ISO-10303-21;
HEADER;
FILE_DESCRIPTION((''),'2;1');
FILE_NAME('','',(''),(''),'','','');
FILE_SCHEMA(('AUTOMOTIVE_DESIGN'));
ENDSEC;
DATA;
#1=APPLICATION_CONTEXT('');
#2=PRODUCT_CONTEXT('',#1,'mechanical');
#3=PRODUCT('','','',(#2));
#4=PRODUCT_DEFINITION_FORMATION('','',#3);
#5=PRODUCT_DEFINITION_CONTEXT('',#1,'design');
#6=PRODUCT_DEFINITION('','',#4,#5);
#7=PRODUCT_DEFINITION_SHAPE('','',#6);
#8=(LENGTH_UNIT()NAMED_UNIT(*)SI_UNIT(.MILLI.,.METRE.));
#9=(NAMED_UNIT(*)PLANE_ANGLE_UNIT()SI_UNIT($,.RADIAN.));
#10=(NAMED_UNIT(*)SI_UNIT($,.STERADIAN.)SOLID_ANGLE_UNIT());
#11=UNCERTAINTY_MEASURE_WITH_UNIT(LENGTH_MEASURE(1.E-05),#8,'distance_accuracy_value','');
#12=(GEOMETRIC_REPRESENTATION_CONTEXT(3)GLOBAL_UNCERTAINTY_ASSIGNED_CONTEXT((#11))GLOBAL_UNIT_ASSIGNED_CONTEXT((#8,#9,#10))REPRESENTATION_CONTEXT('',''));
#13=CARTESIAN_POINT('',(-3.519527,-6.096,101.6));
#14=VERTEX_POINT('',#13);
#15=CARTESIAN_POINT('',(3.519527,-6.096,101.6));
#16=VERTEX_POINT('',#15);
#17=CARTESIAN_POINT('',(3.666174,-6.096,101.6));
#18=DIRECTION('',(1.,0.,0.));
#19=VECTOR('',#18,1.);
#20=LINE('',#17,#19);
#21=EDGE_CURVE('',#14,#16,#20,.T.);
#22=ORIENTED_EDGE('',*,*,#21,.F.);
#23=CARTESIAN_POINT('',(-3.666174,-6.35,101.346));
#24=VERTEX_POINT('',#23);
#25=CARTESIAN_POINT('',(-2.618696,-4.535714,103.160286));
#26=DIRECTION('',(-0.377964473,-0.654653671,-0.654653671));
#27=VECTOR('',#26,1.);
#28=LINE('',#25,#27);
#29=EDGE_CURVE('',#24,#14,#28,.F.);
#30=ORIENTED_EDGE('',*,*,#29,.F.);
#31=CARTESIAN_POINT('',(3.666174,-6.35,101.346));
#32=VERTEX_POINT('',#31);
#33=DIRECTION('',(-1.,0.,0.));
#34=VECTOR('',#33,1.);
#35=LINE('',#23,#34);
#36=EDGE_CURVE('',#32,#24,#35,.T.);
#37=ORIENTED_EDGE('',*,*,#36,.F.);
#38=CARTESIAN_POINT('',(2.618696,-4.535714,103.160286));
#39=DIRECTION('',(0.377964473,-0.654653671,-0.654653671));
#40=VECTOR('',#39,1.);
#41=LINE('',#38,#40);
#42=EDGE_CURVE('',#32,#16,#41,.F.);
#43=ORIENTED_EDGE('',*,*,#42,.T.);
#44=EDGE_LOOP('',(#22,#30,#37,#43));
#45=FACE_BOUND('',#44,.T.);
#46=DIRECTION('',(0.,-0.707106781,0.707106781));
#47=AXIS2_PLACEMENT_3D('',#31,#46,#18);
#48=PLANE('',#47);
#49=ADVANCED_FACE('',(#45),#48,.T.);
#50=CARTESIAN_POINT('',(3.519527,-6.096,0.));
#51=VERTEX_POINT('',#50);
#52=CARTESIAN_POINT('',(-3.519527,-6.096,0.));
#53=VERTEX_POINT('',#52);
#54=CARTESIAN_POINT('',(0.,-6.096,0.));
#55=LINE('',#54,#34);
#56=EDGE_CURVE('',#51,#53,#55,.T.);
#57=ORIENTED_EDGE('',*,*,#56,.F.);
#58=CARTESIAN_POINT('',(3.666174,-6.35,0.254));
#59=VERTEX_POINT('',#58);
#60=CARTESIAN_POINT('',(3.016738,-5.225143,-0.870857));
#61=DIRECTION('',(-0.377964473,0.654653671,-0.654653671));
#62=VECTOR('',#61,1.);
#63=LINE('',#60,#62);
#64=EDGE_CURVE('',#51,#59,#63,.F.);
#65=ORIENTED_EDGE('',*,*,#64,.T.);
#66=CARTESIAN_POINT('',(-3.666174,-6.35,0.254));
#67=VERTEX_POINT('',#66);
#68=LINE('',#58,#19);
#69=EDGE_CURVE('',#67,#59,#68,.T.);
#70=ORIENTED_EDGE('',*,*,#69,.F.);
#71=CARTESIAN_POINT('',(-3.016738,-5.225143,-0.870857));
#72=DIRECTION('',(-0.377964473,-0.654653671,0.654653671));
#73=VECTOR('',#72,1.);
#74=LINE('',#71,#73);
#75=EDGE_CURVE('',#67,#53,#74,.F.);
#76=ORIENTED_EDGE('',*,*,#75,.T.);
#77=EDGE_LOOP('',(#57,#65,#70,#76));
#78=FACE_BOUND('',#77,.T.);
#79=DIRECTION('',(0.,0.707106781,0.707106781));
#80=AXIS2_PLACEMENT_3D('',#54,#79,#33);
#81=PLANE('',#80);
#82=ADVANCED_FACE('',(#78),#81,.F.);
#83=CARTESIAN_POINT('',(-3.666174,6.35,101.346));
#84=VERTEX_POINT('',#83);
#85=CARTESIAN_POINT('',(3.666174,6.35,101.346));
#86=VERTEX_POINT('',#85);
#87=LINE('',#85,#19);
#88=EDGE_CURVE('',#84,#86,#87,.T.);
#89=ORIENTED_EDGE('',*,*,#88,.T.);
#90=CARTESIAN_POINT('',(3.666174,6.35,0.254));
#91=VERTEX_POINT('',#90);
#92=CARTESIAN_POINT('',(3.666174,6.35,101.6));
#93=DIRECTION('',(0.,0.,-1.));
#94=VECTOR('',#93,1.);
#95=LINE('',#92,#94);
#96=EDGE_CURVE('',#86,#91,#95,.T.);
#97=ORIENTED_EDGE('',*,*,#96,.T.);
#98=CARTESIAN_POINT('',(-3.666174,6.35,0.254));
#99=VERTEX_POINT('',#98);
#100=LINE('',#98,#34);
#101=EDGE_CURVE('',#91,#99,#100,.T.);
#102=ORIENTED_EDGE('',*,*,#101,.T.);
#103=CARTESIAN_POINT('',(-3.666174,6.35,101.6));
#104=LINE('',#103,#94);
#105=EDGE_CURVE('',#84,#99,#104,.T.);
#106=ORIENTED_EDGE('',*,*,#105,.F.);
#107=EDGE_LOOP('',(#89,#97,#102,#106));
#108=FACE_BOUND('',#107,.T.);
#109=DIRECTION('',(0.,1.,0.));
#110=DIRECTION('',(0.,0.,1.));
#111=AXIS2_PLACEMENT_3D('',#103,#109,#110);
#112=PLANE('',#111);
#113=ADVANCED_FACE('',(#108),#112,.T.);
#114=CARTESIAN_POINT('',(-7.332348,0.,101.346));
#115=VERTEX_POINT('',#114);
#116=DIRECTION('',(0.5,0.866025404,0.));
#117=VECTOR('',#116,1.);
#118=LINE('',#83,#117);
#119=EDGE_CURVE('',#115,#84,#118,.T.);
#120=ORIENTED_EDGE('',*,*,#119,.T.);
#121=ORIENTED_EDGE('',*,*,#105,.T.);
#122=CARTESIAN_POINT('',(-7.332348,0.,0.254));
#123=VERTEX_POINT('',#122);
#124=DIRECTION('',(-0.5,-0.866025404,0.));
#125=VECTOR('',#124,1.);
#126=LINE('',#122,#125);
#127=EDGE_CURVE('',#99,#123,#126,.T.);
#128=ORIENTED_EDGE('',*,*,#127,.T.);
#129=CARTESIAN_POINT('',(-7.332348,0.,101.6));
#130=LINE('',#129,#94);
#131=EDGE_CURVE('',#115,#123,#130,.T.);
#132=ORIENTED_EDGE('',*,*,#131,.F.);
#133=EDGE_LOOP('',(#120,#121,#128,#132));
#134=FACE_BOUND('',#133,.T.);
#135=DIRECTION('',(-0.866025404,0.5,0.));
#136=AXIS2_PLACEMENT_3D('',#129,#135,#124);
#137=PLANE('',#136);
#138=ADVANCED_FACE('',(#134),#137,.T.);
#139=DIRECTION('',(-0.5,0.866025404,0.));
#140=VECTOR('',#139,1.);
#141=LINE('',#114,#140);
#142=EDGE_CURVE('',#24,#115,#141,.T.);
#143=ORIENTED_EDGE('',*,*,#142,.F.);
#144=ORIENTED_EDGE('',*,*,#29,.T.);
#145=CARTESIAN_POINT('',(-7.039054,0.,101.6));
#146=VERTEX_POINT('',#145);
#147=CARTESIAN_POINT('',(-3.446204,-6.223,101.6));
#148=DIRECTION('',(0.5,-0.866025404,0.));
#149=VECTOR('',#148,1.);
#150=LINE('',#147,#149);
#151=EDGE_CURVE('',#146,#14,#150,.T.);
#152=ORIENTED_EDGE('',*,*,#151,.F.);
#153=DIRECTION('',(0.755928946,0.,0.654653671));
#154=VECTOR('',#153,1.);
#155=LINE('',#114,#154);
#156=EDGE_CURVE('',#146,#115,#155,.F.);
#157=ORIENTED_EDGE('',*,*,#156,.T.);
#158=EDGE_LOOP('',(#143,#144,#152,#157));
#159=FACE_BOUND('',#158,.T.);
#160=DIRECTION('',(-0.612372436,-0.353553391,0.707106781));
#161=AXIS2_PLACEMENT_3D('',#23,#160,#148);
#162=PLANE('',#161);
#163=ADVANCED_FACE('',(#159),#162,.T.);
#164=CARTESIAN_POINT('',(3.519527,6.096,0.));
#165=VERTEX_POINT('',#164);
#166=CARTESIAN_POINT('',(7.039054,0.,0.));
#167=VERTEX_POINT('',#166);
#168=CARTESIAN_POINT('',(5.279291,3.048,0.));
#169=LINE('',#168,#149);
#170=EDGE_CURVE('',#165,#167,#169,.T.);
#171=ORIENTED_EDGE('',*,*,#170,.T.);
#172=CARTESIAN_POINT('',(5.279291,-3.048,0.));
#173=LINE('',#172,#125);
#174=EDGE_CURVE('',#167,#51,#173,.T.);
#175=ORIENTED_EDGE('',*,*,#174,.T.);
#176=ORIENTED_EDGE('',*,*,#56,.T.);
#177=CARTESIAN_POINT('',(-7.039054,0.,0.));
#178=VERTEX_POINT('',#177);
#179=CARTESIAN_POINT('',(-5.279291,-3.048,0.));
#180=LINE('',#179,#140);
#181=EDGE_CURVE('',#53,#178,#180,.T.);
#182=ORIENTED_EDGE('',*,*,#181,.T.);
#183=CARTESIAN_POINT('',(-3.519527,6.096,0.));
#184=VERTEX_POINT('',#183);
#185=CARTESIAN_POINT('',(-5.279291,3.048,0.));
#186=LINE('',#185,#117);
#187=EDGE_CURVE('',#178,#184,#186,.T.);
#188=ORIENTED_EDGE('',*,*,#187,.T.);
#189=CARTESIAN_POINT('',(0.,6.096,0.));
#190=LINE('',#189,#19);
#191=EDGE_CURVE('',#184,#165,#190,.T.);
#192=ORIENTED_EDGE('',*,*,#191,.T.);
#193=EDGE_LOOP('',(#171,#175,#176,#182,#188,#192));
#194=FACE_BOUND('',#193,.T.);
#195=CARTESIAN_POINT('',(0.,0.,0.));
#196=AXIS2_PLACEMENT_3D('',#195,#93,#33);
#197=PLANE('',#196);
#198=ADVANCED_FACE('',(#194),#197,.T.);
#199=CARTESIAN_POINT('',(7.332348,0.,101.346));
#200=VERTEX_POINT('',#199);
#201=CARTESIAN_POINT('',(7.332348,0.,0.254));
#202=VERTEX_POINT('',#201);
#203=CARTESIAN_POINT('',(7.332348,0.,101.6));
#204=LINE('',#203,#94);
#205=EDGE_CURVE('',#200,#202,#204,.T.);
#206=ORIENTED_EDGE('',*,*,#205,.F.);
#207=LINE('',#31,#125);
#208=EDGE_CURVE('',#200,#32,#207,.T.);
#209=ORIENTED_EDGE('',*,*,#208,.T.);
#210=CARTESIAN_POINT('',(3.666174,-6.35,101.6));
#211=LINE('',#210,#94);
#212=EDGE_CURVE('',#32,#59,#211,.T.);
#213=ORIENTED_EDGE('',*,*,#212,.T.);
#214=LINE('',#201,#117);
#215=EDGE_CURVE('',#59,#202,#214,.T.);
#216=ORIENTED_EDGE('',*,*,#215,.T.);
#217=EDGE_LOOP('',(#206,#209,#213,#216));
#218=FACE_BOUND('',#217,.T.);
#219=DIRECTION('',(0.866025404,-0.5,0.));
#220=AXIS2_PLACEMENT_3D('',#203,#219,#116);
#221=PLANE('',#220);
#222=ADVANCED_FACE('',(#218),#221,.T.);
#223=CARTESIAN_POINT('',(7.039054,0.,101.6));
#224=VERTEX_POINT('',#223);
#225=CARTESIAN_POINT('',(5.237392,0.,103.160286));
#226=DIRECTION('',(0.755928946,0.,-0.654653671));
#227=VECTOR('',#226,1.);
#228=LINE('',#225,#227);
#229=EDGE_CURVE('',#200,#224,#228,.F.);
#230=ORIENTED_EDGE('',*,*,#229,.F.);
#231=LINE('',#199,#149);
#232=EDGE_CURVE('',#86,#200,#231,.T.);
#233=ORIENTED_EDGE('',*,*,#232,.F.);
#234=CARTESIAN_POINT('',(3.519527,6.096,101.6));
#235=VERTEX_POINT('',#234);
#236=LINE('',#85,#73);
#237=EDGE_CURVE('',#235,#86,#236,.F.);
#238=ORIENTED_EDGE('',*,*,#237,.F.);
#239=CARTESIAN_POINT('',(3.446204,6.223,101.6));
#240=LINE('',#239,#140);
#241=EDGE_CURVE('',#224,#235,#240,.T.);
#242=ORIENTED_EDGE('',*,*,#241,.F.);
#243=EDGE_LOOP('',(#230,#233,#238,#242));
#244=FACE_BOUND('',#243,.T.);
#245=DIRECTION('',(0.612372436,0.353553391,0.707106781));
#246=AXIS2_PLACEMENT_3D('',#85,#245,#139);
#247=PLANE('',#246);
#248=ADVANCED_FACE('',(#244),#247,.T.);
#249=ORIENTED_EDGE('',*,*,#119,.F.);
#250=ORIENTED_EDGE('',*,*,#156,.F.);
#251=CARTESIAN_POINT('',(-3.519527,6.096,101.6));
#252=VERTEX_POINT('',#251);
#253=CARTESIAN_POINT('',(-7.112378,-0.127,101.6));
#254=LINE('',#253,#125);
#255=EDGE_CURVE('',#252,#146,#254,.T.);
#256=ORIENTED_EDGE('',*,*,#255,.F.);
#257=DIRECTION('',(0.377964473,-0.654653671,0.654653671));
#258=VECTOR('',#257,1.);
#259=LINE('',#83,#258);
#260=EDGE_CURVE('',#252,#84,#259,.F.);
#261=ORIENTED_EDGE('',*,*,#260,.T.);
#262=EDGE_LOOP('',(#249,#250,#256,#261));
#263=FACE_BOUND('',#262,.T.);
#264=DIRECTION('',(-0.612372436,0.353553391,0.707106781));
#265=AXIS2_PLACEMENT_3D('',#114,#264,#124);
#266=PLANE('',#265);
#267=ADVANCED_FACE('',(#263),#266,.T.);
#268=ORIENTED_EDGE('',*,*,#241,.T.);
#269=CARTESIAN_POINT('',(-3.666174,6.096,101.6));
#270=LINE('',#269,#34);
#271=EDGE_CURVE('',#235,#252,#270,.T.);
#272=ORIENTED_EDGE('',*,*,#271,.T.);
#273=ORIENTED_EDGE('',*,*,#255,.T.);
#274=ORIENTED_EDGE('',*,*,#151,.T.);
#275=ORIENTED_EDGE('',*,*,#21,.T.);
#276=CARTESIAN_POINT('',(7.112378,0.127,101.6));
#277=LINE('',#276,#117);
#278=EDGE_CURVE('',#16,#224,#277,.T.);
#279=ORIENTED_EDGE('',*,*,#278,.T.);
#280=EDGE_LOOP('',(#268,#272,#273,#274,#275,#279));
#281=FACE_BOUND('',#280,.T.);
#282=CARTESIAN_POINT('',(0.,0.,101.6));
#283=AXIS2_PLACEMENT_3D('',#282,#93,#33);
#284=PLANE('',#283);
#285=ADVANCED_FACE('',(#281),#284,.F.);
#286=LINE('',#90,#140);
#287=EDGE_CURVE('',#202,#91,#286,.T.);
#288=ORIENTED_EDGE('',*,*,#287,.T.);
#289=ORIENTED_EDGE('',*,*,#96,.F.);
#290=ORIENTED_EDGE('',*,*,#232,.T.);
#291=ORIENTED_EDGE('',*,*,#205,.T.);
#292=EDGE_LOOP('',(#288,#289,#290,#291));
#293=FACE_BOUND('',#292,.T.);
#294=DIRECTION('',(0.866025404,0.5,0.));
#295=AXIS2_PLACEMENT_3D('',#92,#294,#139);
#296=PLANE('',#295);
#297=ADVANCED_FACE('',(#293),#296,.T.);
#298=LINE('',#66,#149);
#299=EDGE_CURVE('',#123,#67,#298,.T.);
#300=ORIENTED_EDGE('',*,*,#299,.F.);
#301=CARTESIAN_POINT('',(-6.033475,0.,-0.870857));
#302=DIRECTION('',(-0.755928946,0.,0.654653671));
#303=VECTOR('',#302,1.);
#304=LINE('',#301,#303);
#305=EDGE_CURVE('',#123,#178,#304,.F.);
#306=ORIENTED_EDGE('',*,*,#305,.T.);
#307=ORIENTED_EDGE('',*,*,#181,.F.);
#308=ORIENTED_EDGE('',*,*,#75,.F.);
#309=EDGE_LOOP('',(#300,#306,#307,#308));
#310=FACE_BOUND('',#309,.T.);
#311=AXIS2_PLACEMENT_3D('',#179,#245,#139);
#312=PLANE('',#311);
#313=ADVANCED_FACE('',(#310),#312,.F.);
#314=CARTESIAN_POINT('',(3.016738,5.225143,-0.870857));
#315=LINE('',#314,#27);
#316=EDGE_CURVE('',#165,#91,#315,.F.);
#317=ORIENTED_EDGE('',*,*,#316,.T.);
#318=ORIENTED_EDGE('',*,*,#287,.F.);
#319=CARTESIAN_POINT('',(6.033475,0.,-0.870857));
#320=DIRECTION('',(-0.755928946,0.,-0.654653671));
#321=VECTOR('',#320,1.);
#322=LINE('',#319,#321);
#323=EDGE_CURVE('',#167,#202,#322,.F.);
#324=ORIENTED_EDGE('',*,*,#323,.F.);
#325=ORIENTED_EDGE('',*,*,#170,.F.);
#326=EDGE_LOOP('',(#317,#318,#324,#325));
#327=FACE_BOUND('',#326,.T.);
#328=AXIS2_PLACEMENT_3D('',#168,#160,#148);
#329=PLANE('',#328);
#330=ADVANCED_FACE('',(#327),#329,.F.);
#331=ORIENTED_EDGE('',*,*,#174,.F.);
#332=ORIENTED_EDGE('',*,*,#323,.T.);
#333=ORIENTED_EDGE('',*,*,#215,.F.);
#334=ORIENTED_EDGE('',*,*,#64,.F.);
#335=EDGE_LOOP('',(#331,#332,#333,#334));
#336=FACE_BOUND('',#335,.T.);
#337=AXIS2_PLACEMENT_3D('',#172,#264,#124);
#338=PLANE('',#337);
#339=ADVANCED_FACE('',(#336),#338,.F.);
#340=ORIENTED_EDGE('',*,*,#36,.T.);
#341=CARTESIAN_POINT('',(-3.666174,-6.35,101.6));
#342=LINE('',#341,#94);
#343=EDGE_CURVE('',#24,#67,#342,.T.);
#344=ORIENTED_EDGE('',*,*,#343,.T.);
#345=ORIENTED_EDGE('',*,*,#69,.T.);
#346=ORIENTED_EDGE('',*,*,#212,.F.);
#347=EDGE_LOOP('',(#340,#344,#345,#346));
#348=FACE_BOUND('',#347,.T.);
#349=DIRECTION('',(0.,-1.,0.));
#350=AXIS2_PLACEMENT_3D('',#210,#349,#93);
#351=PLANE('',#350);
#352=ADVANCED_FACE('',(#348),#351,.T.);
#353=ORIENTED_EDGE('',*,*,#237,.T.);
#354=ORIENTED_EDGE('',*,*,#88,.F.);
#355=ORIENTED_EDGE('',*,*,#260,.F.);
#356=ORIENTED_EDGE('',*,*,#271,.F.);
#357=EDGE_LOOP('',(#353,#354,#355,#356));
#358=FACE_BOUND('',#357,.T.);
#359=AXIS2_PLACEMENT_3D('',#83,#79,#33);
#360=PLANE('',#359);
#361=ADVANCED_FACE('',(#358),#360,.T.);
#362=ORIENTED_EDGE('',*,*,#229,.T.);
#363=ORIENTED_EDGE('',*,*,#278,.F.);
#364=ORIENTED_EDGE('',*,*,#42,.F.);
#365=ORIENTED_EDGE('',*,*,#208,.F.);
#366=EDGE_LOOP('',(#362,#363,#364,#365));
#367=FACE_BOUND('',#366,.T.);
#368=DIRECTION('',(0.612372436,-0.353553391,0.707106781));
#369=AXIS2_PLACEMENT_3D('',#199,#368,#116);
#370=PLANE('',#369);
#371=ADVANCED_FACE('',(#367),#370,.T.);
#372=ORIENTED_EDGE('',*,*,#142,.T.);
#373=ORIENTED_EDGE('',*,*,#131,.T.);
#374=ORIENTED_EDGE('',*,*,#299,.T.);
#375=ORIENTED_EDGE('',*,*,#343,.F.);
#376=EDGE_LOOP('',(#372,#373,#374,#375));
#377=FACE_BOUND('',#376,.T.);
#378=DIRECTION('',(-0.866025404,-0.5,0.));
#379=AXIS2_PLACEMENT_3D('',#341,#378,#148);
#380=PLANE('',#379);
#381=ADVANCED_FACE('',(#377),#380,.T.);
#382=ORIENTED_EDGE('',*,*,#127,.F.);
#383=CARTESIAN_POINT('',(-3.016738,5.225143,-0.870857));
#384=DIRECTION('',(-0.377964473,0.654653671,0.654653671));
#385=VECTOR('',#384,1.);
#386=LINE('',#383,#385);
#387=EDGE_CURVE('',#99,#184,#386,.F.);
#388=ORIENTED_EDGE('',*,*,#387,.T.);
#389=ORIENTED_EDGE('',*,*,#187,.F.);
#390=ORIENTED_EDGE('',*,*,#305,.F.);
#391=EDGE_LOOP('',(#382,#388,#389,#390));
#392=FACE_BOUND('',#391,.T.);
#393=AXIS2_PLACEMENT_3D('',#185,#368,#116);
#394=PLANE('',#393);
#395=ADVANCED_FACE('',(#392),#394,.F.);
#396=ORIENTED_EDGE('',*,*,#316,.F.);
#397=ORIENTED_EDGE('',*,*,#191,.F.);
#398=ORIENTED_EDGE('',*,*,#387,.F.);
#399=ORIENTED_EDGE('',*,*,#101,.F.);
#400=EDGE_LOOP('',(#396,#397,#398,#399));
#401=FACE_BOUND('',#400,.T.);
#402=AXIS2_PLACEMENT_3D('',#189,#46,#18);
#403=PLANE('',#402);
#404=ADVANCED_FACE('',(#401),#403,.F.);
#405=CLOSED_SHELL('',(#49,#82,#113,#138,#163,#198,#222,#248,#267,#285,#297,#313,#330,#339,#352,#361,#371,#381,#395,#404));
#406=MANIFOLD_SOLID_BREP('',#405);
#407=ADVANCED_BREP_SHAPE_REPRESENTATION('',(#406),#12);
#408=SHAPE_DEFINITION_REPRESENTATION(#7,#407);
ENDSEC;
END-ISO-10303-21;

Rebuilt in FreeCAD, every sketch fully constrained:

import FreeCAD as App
import Part
import Sketcher

V = App.Vector
Q = App.Units.Quantity


def edges_at(feature, points):
    """Names of the edges that pass closest to the given points."""
    edges = feature.Shape.Edges
    near = lambda p: min(range(len(edges)), key=lambda i: edges[i].distToShape(Part.Vertex(*p))[0])
    return sorted({f"Edge{near(p) + 1}" for p in points})


def add_polygon(sketch, points):
    """Adds a closed chain of lines whose ends are joined by coincident constraints."""
    first, n = sketch.GeometryCount, len(points)
    for a, b in zip(points, points[1:] + points[:1]):
        sketch.addGeometry(Part.LineSegment(App.Vector(*a, 0), App.Vector(*b, 0)), False)
    for i in range(n):
        sketch.addConstraint(Sketcher.Constraint("Coincident", first + i, 2, first + (i + 1) % n, 1))

doc = App.newDocument("Part")
body = doc.addObject("PartDesign::Body", "Body")

# Sketch on XY plane
sketch1 = doc.addObject("Sketcher::SketchObject", "Sketch")
body.addObject(sketch1)
sketch1.AttachmentSupport = (doc.XY_Plane, [""])
sketch1.MapMode = "FlatFace"
add_polygon(sketch1, [(-3.666174, 6.35), (3.666174, 6.35), (7.332348, 0), (3.666174, -6.35), (-3.666174, -6.35), (-7.332348, 0)])  # lines 0-5
sketch1.addConstraint([
    Sketcher.Constraint("Horizontal", 0),
    Sketcher.Constraint("Horizontal", 3),
    Sketcher.Constraint("Symmetric", 0, 2, 3, 2, -1, 1),
    Sketcher.Constraint("Symmetric", 1, 2, 4, 2, -1, 1),
    Sketcher.Constraint("PointOnObject", 1, 2, -1),
    Sketcher.Constraint("Parallel", 2, 5),
    Sketcher.Constraint("Vertical", 0, 2, 2, 2),
    Sketcher.Constraint("Angle", 1, Q("-60 deg")),
    Sketcher.Constraint("DistanceY", 2, 2, 0, 2, Q("0.5 in")),
    Sketcher.Constraint("DistanceX", 0, 1, 0, 2, Q("7.332348 mm")),
])
pad1 = doc.addObject("PartDesign::Pad", "Pad")
body.addObject(pad1)
pad1.Profile = sketch1
pad1.Length = Q("4 in")
doc.recompute()

chamfer = doc.addObject("PartDesign::Chamfer", "Chamfer")
body.addObject(chamfer)
chamfer.Base = (pad1, edges_at(pad1, [
    (5.499, 3.175, 101.6),
    (5.499, -3.175, 101.6),
    (0, -6.35, 101.6),
    (-5.499, -3.175, 101.6),
    (-5.499, 3.175, 101.6),
    (-5.499, -3.175, 0),
    (0, -6.35, 0),
    (5.499, -3.175, 0),
    (5.499, 3.175, 0),
    (0, 6.35, 0),
    (-5.499, 3.175, 0),
    (0, 6.35, 101.6),
]))
chamfer.Size = Q("0.01 in")

doc.recompute()
